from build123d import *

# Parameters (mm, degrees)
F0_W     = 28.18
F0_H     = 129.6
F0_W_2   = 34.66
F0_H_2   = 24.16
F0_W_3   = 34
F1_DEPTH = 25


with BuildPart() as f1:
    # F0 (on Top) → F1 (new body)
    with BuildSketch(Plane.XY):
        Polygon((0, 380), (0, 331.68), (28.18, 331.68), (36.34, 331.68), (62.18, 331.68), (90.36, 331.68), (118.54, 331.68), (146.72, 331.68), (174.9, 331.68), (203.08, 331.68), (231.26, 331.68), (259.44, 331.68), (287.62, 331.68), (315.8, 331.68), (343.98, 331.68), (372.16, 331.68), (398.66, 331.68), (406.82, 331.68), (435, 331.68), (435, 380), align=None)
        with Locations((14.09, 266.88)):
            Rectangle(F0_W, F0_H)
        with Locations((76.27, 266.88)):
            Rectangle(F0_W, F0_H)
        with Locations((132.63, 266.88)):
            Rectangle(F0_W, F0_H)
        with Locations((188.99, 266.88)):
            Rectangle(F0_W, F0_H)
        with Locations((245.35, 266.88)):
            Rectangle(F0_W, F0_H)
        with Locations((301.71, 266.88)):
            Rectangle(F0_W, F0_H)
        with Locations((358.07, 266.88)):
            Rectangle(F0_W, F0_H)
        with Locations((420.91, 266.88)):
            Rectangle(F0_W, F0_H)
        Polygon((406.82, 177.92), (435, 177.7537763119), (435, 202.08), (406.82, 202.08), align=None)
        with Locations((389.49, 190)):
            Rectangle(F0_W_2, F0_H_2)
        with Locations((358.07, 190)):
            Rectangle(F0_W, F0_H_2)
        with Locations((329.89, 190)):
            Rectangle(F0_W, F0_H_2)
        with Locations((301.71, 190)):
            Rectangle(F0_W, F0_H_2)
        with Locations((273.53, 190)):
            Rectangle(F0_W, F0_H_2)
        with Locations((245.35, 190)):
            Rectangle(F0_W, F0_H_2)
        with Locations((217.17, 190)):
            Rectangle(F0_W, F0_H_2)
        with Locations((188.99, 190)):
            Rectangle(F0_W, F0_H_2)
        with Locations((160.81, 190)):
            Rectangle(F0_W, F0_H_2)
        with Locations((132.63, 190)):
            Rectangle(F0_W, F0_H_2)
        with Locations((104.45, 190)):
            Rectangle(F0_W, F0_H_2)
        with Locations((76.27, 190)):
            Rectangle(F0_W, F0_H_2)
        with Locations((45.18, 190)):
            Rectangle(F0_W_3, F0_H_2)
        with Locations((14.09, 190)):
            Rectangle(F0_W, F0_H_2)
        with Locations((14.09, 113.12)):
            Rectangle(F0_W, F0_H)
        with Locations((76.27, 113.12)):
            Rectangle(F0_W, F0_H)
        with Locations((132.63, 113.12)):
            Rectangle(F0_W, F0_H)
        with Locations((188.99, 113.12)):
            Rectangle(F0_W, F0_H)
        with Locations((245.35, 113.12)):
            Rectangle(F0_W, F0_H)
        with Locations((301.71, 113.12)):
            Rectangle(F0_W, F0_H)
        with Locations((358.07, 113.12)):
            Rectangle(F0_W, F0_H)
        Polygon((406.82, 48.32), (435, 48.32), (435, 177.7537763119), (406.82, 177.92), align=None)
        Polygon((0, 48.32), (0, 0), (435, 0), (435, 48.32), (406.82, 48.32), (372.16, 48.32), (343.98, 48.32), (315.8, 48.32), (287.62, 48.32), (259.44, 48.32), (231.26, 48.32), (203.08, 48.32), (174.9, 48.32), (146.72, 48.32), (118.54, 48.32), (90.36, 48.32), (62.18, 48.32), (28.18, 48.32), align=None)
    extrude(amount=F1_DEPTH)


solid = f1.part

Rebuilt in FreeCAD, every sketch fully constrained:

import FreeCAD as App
import Part
import Sketcher


def add_polygon(sketch, points):
    """Adds a closed chain of lines whose ends are joined by coincident constraints."""
    first, n = sketch.GeometryCount, len(points)
    for a, b in zip(points, points[1:] + points[:1]):
        sketch.addGeometry(Part.LineSegment(App.Vector(*a, 0), App.Vector(*b, 0)), False)
    for i in range(n):
        sketch.addConstraint(Sketcher.Constraint("Coincident", first + i, 2, first + (i + 1) % n, 1))

doc = App.newDocument("Part")
params = doc.addObject("Spreadsheet::Sheet", "Params")
for row, (alias, value) in enumerate([
    ("sketch1_width", "435 mm"),
    ("sketch1_width2", "34 mm"),
    ("sketch1_height", "380 mm"),
    ("sketch1_height2", "129.6 mm"),
    ("sketch1_width3", "28.18 mm"),
    ("pad1_length", "25 mm"),
], start=1):
    params.set(f"A{row}", alias)
    params.set(f"B{row}", "=" + value)
    params.setAlias(f"B{row}", alias)

body = doc.addObject("PartDesign::Body", "Body")

# Sketch on XY plane
sketch1 = body.newObject("Sketcher::SketchObject", "Sketch")
sketch1.AttachmentSupport = (doc.getObject("XY_Plane"), [""])
sketch1.MapMode = "FlatFace"
add_polygon(sketch1, [(0, 380), (0, 0), (435, 0), (435, 380)])  # lines 0-3
add_polygon(sketch1, [(28, 48), (28, 178), (62, 178), (62, 48)])  # lines 4-7
add_polygon(sketch1, [(90, 48), (90, 178), (119, 178), (119, 48)])  # lines 8-11
add_polygon(sketch1, [(147, 48), (147, 178), (175, 178), (175, 48)])  # lines 12-15
add_polygon(sketch1, [(203, 48), (203, 178), (231, 178), (231, 48)])  # lines 16-19
add_polygon(sketch1, [(259, 48), (259, 178), (288, 178), (288, 48)])  # lines 20-23
add_polygon(sketch1, [(316, 48), (316, 178), (344, 178), (344, 48)])  # lines 24-27
add_polygon(sketch1, [(372, 48), (372, 178), (407, 178), (407, 48)])  # lines 28-31
add_polygon(sketch1, [(62, 202), (28, 202), (28, 332), (62, 332)])  # lines 32-35
add_polygon(sketch1, [(119, 202), (90, 202), (90, 332), (119, 332)])  # lines 36-39
add_polygon(sketch1, [(175, 202), (147, 202), (147, 332), (175, 332)])  # lines 40-43
add_polygon(sketch1, [(231, 202), (203, 202), (203, 332), (231, 332)])  # lines 44-47
add_polygon(sketch1, [(288, 202), (259, 202), (259, 332), (288, 332)])  # lines 48-51
add_polygon(sketch1, [(344, 202), (316, 202), (316, 332), (344, 332)])  # lines 52-55
add_polygon(sketch1, [(407, 202), (372, 202), (372, 332), (407, 332)])  # lines 56-59
sketch1.addConstraint([
    Sketcher.Constraint("Vertical", 0),
    Sketcher.Constraint("Horizontal", 1),
    Sketcher.Constraint("Vertical", 2),
    Sketcher.Constraint("Horizontal", 3),
    Sketcher.Constraint("Vertical", 4),
    Sketcher.Constraint("Horizontal", 5),
    Sketcher.Constraint("Vertical", 6),
    Sketcher.Constraint("Horizontal", 7),
    Sketcher.Constraint("Vertical", 8),
    Sketcher.Constraint("Horizontal", 9),
    Sketcher.Constraint("Vertical", 10),
    Sketcher.Constraint("Horizontal", 11),
    Sketcher.Constraint("Vertical", 12),
    Sketcher.Constraint("Horizontal", 13),
    Sketcher.Constraint("Vertical", 14),
    Sketcher.Constraint("Horizontal", 15),
    Sketcher.Constraint("Vertical", 16),
    Sketcher.Constraint("Horizontal", 17),
    Sketcher.Constraint("Vertical", 18),
    Sketcher.Constraint("Horizontal", 19),
    Sketcher.Constraint("Vertical", 20),
    Sketcher.Constraint("Horizontal", 21),
    Sketcher.Constraint("Vertical", 22),
    Sketcher.Constraint("Horizontal", 23),
    Sketcher.Constraint("Vertical", 24),
    Sketcher.Constraint("Horizontal", 25),
    Sketcher.Constraint("Vertical", 26),
    Sketcher.Constraint("Horizontal", 27),
    Sketcher.Constraint("Vertical", 28),
    Sketcher.Constraint("Horizontal", 29),
    Sketcher.Constraint("Vertical", 30),
    Sketcher.Constraint("Horizontal", 31),
    Sketcher.Constraint("Horizontal", 32),
    Sketcher.Constraint("Vertical", 33),
    Sketcher.Constraint("Horizontal", 34),
    Sketcher.Constraint("Vertical", 35),
    Sketcher.Constraint("Horizontal", 36),
    Sketcher.Constraint("Vertical", 37),
    Sketcher.Constraint("Horizontal", 38),
    Sketcher.Constraint("Vertical", 39),
    Sketcher.Constraint("Horizontal", 40),
    Sketcher.Constraint("Vertical", 41),
    Sketcher.Constraint("Horizontal", 42),
    Sketcher.Constraint("Vertical", 43),
    Sketcher.Constraint("Horizontal", 44),
    Sketcher.Constraint("Vertical", 45),
    Sketcher.Constraint("Horizontal", 46),
    Sketcher.Constraint("Vertical", 47),
    Sketcher.Constraint("Horizontal", 48),
    Sketcher.Constraint("Vertical", 49),
    Sketcher.Constraint("Horizontal", 50),
    Sketcher.Constraint("Vertical", 51),
    Sketcher.Constraint("Horizontal", 52),
    Sketcher.Constraint("Vertical", 53),
    Sketcher.Constraint("Horizontal", 54),
    Sketcher.Constraint("Vertical", 55),
    Sketcher.Constraint("Horizontal", 56),
    Sketcher.Constraint("Vertical", 57),
    Sketcher.Constraint("Horizontal", 58),
    Sketcher.Constraint("Vertical", 59),
    Sketcher.Constraint("Coincident", 0, 2, -1, 1),
    Sketcher.Constraint("Horizontal", 5, 2, 8, 2),
    Sketcher.Constraint("Horizontal", 7, 2, 10, 2),
    Sketcher.Constraint("Horizontal", 9, 2, 12, 2),
    Sketcher.Constraint("Horizontal", 11, 2, 14, 2),
    Sketcher.Constraint("Horizontal", 13, 2, 16, 2),
    Sketcher.Constraint("Horizontal", 15, 2, 18, 2),
    Sketcher.Constraint("Horizontal", 17, 2, 20, 2),
    Sketcher.Constraint("Horizontal", 19, 2, 22, 2),
    Sketcher.Constraint("Horizontal", 21, 2, 24, 2),
    Sketcher.Constraint("Horizontal", 23, 2, 26, 2),
    Sketcher.Constraint("Horizontal", 25, 2, 28, 2),
    Sketcher.Constraint("Horizontal", 27, 2, 30, 2),
    Sketcher.Constraint("Horizontal", 35, 2, 36, 2),
    Sketcher.Constraint("Horizontal", 34, 2, 37, 2),
    Sketcher.Constraint("Horizontal", 39, 2, 40, 2),
    Sketcher.Constraint("Horizontal", 38, 2, 41, 2),
    Sketcher.Constraint("Horizontal", 43, 2, 44, 2),
    Sketcher.Constraint("Horizontal", 42, 2, 45, 2),
    Sketcher.Constraint("Horizontal", 47, 2, 48, 2),
    Sketcher.Constraint("Horizontal", 46, 2, 49, 2),
    Sketcher.Constraint("Horizontal", 51, 2, 52, 2),
    Sketcher.Constraint("Horizontal", 50, 2, 53, 2),
    Sketcher.Constraint("Horizontal", 55, 2, 56, 2),
    Sketcher.Constraint("Horizontal", 54, 2, 57, 2),
    Sketcher.Constraint("Vertical", 7, 2, 32, 2),
    Sketcher.Constraint("Vertical", 6, 2, 34, 2),
    Sketcher.Constraint("Vertical", 11, 2, 36, 2),
    Sketcher.Constraint("Vertical", 10, 2, 38, 2),
    Sketcher.Constraint("Vertical", 15, 2, 40, 2),
    Sketcher.Constraint("Vertical", 14, 2, 42, 2),
    Sketcher.Constraint("Vertical", 19, 2, 44, 2),
    Sketcher.Constraint("Vertical", 18, 2, 46, 2),
    Sketcher.Constraint("Vertical", 23, 2, 48, 2),
    Sketcher.Constraint("Vertical", 22, 2, 50, 2),
    Sketcher.Constraint("Vertical", 27, 2, 52, 2),
    Sketcher.Constraint("Vertical", 26, 2, 54, 2),
    Sketcher.Constraint("Vertical", 31, 2, 56, 2),
    Sketcher.Constraint("Vertical", 30, 2, 58, 2),
    Sketcher.Constraint("Equal", 11, 13),
    Sketcher.Constraint("Equal", 15, 17),
    Sketcher.Constraint("Equal", 19, 21),
    Sketcher.Constraint("Equal", 23, 25),
    Sketcher.Constraint("Equal", 30, 33),
    Sketcher.Constraint("DistanceX", 1, 1, 1, 2, 435.0),
    Sketcher.Constraint("DistanceX", 5, 1, 5, 2, 34.0),
    Sketcher.Constraint("DistanceY", 0, 2, 0, 1, 380.0),
    Sketcher.Constraint("DistanceY", 4, 1, 4, 2, 129.6),
    Sketcher.Constraint("DistanceX", 9, 1, 9, 2, 28.18),
    Sketcher.Constraint("DistanceX", 29, 1, 29, 2, 34.66),
    Sketcher.Constraint("DistanceX", -1, 1, 13, 2, 174.9),
    Sketcher.Constraint("DistanceX", -1, 1, 24, 2, 315.8),
    Sketcher.Constraint("DistanceX", 8, 2, 17, 2, 140.9),
    Sketcher.Constraint("DistanceX", 12, 2, 21, 2, 140.9),
    Sketcher.Constraint("DistanceX", 16, 2, 25, 2, 140.9),
    Sketcher.Constraint("DistanceX", 21, 2, 29, 2, 119.2),
    Sketcher.Constraint("DistanceX", -1, 1, 4, 2, 28.18),
    Sketcher.Constraint("DistanceY", -1, 1, 4, 2, 177.92),
    Sketcher.Constraint("DistanceY", -1, 1, 32, 2, 202.08),
])
sketch1.setExpression("Constraints[164]", "Params.sketch1_width")
sketch1.setExpression("Constraints[165]", "Params.sketch1_width2")
sketch1.setExpression("Constraints[166]", "Params.sketch1_height")
sketch1.setExpression("Constraints[167]", "Params.sketch1_height2")
sketch1.setExpression("Constraints[168]", "Params.sketch1_width3")
pad1 = body.newObject("PartDesign::Pad", "Pad")
pad1.Profile = sketch1
pad1.setExpression("Length", "Params.pad1_length")

doc.recompute()
